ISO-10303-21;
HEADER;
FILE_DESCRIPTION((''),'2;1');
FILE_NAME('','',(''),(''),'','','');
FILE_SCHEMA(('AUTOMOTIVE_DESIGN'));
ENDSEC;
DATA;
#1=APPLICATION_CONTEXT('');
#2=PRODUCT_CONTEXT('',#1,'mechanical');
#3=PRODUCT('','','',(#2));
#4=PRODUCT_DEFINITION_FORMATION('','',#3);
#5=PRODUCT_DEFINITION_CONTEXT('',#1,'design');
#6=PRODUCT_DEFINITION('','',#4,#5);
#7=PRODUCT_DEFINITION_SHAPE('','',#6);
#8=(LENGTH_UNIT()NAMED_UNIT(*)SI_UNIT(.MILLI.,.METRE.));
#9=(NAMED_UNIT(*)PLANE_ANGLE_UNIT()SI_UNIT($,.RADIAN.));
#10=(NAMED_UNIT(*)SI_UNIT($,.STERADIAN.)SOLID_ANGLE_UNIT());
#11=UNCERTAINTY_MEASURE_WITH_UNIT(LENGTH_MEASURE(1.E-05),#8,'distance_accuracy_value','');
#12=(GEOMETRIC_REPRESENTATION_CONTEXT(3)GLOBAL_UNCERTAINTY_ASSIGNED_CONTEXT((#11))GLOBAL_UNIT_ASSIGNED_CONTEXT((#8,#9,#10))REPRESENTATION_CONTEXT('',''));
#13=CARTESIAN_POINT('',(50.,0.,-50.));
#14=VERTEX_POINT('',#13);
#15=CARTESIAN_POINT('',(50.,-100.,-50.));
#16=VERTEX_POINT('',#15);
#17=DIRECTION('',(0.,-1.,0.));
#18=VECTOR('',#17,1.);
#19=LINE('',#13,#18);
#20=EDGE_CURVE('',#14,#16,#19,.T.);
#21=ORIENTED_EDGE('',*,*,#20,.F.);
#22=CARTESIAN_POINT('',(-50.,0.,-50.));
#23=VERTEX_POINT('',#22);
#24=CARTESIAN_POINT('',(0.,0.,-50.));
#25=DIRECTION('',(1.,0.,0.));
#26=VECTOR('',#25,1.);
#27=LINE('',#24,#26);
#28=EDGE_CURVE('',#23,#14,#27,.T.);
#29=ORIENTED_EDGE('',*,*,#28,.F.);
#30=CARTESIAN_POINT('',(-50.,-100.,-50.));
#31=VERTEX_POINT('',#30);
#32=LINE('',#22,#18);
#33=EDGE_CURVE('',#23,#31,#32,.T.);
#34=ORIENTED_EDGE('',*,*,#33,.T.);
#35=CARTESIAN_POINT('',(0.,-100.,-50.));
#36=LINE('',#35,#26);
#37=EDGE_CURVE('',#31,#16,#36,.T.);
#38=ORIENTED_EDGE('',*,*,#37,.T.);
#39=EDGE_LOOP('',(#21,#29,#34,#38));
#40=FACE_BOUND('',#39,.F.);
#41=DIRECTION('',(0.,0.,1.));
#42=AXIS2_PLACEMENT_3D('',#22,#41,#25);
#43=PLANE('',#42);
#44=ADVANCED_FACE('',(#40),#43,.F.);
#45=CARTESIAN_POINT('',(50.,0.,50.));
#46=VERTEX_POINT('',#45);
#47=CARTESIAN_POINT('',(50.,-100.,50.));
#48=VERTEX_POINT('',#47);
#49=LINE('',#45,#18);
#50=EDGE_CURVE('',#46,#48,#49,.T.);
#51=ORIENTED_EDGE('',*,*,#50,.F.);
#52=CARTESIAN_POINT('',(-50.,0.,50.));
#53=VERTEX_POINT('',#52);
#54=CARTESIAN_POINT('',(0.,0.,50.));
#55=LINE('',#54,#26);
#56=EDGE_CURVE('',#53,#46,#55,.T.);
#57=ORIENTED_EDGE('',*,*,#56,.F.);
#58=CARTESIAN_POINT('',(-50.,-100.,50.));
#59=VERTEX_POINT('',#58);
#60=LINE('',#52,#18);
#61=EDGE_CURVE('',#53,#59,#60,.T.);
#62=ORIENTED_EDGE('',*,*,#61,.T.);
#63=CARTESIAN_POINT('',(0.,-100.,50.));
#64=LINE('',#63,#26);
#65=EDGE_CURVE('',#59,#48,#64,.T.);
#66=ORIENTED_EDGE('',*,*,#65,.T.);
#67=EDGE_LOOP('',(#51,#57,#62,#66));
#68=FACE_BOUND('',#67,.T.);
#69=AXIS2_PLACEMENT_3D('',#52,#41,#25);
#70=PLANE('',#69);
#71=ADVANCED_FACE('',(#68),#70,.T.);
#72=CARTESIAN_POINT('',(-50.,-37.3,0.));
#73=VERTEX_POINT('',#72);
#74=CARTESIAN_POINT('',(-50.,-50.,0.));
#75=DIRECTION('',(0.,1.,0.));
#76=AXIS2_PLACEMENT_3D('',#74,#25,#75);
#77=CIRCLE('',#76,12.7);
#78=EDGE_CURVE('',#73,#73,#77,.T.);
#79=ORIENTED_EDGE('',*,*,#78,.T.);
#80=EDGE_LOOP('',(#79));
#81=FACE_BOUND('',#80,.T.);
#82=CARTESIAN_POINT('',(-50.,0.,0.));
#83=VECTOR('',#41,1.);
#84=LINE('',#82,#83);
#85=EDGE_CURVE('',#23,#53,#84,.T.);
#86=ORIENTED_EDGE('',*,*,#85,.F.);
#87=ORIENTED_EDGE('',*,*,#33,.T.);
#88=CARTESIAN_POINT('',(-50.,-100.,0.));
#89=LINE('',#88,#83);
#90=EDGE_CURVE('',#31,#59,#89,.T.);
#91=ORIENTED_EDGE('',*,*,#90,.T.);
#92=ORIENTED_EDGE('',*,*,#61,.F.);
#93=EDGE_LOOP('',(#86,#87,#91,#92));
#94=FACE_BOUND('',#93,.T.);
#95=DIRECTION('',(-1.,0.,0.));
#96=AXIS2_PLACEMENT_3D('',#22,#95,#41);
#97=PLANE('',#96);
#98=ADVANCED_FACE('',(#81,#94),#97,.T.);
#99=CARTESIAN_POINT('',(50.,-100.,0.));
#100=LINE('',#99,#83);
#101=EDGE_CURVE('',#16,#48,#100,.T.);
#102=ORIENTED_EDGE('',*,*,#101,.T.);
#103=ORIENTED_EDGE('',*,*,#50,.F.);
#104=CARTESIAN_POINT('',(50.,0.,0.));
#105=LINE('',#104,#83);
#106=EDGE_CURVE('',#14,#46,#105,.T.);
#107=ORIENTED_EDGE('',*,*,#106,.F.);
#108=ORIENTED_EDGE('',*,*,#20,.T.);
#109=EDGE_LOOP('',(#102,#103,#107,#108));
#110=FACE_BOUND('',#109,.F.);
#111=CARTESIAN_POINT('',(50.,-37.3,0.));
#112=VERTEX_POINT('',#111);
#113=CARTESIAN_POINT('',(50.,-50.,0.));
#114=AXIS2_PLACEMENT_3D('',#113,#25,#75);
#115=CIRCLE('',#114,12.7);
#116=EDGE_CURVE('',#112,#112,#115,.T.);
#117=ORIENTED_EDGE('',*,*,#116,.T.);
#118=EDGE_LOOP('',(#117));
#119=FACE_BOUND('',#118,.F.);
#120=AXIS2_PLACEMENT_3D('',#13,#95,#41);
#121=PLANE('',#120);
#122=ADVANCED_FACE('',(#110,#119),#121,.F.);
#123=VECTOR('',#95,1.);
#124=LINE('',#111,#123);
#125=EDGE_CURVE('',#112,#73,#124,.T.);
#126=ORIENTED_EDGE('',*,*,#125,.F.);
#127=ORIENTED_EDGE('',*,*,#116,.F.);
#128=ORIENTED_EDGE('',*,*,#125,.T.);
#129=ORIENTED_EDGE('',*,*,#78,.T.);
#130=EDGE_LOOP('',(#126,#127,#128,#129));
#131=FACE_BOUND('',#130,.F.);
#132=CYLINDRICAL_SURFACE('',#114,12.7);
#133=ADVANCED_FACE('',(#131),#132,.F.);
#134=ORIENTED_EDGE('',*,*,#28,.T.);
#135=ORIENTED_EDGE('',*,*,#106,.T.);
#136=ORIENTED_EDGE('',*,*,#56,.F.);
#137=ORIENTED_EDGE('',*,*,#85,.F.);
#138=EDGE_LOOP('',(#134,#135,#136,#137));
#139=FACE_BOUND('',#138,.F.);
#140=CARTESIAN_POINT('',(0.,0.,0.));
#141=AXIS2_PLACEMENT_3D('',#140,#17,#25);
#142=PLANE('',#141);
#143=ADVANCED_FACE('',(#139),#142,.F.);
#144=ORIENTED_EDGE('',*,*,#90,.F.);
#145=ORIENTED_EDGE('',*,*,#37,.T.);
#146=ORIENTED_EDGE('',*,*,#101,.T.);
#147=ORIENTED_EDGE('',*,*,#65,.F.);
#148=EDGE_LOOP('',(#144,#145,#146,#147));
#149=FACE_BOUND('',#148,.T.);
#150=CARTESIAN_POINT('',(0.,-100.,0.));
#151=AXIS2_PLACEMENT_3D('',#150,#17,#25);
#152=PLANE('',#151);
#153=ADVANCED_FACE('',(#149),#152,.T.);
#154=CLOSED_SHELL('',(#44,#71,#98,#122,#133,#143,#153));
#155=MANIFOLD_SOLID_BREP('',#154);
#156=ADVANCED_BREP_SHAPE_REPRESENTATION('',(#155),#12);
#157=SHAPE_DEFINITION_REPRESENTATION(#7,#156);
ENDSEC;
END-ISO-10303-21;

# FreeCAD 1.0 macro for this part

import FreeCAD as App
import Part
import Sketcher

V = App.Vector
Q = App.Units.Quantity


def add_polygon(sketch, points):
    """Adds a closed chain of lines whose ends are joined by coincident constraints."""
    first, n = sketch.GeometryCount, len(points)
    for a, b in zip(points, points[1:] + points[:1]):
        sketch.addGeometry(Part.LineSegment(App.Vector(*a, 0), App.Vector(*b, 0)), False)
    for i in range(n):
        sketch.addConstraint(Sketcher.Constraint("Coincident", first + i, 2, first + (i + 1) % n, 1))

doc = App.newDocument("Part")
params = doc.addObject("Spreadsheet::Sheet", "Params")
for row, (alias, value) in enumerate([
    ("sketch1_width", "100 mm"),
    ("pad1_length", "100 mm"),
    ("sketch2_diameter", "25.4 mm"),
], start=1):
    params.set(f"A{row}", alias)
    params.set(f"B{row}", "=" + value)
    params.setAlias(f"B{row}", alias)

body = doc.addObject("PartDesign::Body", "Body")

# Sketch on XZ plane
sketch1 = doc.addObject("Sketcher::SketchObject", "Sketch")
body.addObject(sketch1)
sketch1.AttachmentSupport = (doc.XZ_Plane, [""])
sketch1.MapMode = "FlatFace"
add_polygon(sketch1, [(-50, 50), (-50, -50), (50, -50), (50, 50)])  # lines 0-3
sketch1.addConstraint([
    Sketcher.Constraint("Vertical", 0),
    Sketcher.Constraint("Horizontal", 1),
    Sketcher.Constraint("Vertical", 2),
    Sketcher.Constraint("Horizontal", 3),
    Sketcher.Constraint("Symmetric", 0, 2, 2, 2, -1, 1),
    Sketcher.Constraint("Equal", 3, 0),
    Sketcher.Constraint("DistanceX", 1, 1, 1, 2, Q("100 mm")),
])
sketch1.setExpression("Constraints[10]", "Params.sketch1_width")
pad1 = doc.addObject("PartDesign::Pad", "Pad")
body.addObject(pad1)
pad1.Profile = sketch1
pad1.setExpression("Length", "Params.pad1_length")

# Sketch on YZ plane
sketch2 = doc.addObject("Sketcher::SketchObject", "Sketch001")
body.addObject(sketch2)
sketch2.AttachmentSupport = (doc.YZ_Plane, [""])
sketch2.MapMode = "FlatFace"
sketch2.AttachmentOffset = App.Placement(V(0, 0, 50), App.Rotation())
sketch2.addGeometry(Part.Circle(V(-50, 0, 0), V(0, 0, 1), 13), False)
sketch2.addConstraint([
    Sketcher.Constraint("PointOnObject", 0, 3, -1),
    Sketcher.Constraint("Diameter", 0, Q("25.4 mm")),
    Sketcher.Constraint("DistanceX", 0, 3, -1, 1, Q("50 mm")),
])
sketch2.setExpression("Constraints[1]", "Params.sketch2_diameter")
pocket1 = doc.addObject("PartDesign::Pocket", "Pocket")
body.addObject(pocket1)
pocket1.Profile = sketch2
pocket1.Type = "ThroughAll"

doc.recompute()
